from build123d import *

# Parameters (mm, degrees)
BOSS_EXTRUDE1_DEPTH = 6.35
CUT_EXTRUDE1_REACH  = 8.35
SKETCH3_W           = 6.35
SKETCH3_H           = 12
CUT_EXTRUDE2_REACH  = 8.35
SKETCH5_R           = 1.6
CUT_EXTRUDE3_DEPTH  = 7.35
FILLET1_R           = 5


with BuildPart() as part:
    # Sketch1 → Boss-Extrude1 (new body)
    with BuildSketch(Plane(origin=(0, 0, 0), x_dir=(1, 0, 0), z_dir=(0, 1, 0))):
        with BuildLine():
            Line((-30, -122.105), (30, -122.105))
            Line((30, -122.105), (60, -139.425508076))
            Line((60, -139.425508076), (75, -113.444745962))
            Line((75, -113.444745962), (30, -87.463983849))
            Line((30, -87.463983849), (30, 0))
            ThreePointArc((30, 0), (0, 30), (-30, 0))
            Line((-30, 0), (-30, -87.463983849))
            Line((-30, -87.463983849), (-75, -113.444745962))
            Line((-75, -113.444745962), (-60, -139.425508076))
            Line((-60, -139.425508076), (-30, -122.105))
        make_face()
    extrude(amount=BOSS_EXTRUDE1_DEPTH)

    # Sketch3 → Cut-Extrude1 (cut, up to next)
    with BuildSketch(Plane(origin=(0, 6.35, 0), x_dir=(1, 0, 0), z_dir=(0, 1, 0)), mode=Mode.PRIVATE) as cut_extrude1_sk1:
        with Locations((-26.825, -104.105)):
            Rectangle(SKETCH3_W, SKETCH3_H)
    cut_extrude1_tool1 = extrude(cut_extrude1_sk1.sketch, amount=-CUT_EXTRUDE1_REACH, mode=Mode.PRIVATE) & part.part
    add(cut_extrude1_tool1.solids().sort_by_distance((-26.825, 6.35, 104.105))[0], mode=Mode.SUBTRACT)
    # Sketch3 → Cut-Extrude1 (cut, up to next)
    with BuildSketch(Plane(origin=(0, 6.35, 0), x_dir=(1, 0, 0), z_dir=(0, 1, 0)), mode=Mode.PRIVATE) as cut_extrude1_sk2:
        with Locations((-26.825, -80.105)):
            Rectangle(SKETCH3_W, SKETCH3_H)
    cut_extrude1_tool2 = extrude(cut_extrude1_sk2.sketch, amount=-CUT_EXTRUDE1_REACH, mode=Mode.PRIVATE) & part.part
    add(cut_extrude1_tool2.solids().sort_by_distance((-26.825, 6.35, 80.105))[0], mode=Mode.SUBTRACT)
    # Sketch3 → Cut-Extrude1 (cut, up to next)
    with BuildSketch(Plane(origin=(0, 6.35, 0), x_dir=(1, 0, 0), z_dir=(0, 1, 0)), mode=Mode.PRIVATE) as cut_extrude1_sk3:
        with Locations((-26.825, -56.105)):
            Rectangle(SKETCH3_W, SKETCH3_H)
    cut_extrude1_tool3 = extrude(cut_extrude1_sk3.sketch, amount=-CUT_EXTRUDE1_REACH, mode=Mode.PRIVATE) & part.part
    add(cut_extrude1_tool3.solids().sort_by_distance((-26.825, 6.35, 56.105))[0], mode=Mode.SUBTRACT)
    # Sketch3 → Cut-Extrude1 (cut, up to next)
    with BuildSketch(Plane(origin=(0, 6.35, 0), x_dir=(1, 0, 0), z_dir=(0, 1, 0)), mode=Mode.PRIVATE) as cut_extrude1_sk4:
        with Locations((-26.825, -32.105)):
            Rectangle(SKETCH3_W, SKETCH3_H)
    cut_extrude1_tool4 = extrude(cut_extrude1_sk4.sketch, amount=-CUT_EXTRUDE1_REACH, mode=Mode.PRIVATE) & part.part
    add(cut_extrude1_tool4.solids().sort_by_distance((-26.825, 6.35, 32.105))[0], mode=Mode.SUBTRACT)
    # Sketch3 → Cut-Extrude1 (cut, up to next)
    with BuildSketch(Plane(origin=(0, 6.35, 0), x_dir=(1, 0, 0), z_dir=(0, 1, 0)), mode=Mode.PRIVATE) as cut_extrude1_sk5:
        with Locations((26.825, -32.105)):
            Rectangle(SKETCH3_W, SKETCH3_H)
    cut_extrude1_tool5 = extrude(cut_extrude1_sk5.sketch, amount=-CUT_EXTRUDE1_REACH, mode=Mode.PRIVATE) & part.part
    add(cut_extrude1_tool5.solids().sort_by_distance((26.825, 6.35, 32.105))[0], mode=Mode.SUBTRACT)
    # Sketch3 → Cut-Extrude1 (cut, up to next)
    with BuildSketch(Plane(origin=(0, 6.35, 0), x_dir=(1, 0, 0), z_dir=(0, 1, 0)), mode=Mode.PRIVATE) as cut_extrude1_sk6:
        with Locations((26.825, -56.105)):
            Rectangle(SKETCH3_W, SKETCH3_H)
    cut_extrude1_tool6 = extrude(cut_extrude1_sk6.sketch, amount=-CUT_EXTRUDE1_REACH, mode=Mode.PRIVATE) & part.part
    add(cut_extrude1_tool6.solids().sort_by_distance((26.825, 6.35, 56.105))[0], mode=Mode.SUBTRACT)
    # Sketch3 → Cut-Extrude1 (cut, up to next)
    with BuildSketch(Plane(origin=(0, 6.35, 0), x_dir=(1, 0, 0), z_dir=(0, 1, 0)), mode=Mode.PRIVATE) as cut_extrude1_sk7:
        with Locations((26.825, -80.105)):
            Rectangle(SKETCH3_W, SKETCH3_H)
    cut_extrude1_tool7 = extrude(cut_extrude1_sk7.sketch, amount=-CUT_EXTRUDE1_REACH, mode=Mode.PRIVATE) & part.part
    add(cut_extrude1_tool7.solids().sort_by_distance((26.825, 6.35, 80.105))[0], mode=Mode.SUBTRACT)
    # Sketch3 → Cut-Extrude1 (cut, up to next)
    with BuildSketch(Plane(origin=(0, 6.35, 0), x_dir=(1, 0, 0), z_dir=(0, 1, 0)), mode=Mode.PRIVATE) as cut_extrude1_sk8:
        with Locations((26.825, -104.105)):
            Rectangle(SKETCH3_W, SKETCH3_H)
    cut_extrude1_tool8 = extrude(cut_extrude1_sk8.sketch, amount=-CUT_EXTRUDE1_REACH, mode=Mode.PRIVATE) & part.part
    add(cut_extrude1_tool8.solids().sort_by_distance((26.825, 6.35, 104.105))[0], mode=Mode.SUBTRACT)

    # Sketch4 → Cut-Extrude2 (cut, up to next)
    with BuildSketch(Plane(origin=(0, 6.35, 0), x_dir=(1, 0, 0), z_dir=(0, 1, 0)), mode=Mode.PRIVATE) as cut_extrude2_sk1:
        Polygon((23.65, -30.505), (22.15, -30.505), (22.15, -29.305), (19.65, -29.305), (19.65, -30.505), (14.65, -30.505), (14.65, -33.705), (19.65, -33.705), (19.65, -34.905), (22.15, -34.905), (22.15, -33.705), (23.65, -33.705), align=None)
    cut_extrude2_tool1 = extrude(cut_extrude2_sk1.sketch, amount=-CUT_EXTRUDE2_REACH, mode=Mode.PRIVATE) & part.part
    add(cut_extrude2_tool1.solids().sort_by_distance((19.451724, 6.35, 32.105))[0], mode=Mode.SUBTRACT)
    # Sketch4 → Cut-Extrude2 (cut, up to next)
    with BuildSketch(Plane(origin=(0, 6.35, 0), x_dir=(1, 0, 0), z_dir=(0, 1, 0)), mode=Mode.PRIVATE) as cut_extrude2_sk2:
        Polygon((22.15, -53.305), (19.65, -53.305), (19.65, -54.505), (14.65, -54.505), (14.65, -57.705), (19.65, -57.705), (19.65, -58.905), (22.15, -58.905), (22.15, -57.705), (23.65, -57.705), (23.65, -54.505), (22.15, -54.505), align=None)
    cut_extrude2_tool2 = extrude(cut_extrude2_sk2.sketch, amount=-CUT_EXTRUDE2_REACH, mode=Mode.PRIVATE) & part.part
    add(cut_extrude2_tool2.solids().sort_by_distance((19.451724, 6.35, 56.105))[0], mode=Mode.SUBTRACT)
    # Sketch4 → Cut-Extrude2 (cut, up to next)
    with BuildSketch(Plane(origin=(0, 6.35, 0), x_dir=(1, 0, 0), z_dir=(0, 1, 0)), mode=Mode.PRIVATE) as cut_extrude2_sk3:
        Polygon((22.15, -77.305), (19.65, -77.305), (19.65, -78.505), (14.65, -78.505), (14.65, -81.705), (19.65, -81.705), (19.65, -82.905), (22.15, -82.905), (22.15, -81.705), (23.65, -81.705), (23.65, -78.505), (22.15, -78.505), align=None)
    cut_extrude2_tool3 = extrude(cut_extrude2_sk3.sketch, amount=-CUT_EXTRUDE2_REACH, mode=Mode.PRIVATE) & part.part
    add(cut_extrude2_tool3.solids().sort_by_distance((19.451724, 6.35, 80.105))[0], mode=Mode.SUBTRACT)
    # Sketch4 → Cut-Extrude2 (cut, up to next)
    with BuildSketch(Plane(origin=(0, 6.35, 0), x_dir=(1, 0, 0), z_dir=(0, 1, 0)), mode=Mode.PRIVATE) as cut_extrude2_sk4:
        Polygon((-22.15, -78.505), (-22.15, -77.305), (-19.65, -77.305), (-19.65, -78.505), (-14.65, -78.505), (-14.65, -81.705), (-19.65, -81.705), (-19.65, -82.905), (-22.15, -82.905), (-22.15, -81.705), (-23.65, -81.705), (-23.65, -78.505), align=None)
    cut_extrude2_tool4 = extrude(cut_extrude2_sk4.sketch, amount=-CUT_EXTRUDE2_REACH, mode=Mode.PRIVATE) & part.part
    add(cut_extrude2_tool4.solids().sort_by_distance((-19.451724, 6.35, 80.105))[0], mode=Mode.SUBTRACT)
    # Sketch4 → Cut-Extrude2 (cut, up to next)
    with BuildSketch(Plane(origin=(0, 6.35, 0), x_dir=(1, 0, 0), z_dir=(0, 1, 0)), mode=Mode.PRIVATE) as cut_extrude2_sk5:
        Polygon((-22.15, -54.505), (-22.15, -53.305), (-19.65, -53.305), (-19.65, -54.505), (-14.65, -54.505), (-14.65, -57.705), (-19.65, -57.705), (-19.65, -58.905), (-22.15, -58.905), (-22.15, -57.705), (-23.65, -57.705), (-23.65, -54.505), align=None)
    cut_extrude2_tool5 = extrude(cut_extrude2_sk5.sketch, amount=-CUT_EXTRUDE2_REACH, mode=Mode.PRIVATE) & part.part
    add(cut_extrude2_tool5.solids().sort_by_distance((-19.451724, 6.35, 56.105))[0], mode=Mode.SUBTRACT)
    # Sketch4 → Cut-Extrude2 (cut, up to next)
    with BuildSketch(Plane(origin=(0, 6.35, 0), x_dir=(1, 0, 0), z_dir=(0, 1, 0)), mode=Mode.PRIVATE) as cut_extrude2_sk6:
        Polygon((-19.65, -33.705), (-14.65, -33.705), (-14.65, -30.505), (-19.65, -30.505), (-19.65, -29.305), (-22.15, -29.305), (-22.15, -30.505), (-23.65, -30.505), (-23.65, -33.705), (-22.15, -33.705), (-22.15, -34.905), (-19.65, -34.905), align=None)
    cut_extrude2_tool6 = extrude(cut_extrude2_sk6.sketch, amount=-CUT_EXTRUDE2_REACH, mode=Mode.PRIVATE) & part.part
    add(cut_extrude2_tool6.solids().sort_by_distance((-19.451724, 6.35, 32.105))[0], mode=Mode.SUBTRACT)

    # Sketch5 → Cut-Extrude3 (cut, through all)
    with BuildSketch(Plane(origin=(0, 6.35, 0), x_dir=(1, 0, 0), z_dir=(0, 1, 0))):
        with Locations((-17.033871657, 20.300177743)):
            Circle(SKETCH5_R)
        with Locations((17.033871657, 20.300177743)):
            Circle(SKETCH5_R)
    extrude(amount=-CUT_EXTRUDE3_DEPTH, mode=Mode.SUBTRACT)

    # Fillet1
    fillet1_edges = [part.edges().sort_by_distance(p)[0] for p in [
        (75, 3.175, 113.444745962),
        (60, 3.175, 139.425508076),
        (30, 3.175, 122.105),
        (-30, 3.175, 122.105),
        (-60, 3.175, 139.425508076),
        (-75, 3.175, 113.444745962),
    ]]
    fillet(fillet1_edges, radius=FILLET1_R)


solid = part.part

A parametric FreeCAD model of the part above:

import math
import FreeCAD as App
import Part
import Sketcher
from FreeCAD import Vector
Q = App.Units.Quantity


def edges_at(feature, points):
    """Names of the edges that pass closest to the given points."""
    edges = feature.Shape.Edges
    near = lambda p: min(range(len(edges)), key=lambda i: edges[i].distToShape(Part.Vertex(*p))[0])
    return sorted({f"Edge{near(p) + 1}" for p in points})

doc = App.newDocument("Part")
body = doc.addObject("PartDesign::Body", "Body")

# Sketch on XZ plane
sketch1 = body.newObject("Sketcher::SketchObject", "Sketch")
sketch1.AttachmentSupport = (doc.getObject("XZ_Plane"), [""])
sketch1.MapMode = "FlatFace"
sketch1.addGeometry(Part.LineSegment(Vector(-30, 122.105, 0), Vector(30, 122.105, 0)), False)
sketch1.addGeometry(Part.LineSegment(Vector(30, 122.105, 0), Vector(60, 139.425508, 0)), False)
sketch1.addGeometry(Part.LineSegment(Vector(60, 139.425508, 0), Vector(75, 113.444746, 0)), False)
sketch1.addGeometry(Part.LineSegment(Vector(75, 113.444746, 0), Vector(30, 87.463984, 0)), False)
sketch1.addGeometry(Part.LineSegment(Vector(30, 87.463984, 0), Vector(30, 0, 0)), False)
sketch1.addGeometry(Part.ArcOfCircle(Part.Circle(Vector(0, 0, 0), Vector(0, 0, 1), 30), math.radians(180), math.radians(360)), False)
sketch1.addGeometry(Part.LineSegment(Vector(-30, 0, 0), Vector(-30, 87.463984, 0)), False)
sketch1.addGeometry(Part.LineSegment(Vector(-30, 87.463984, 0), Vector(-75, 113.444746, 0)), False)
sketch1.addGeometry(Part.LineSegment(Vector(-75, 113.444746, 0), Vector(-60, 139.425508, 0)), False)
sketch1.addGeometry(Part.LineSegment(Vector(-60, 139.425508, 0), Vector(-30, 122.105, 0)), False)
sketch1.addConstraint(Sketcher.Constraint("Coincident", 0, 2, 1, 1))
sketch1.addConstraint(Sketcher.Constraint("Coincident", 1, 2, 2, 1))
sketch1.addConstraint(Sketcher.Constraint("Coincident", 2, 2, 3, 1))
sketch1.addConstraint(Sketcher.Constraint("Coincident", 3, 2, 4, 1))
sketch1.addConstraint(Sketcher.Constraint("Tangent", 4, 2, 5, 2))
sketch1.addConstraint(Sketcher.Constraint("Tangent", 5, 1, 6, 1))
sketch1.addConstraint(Sketcher.Constraint("Coincident", 6, 2, 7, 1))
sketch1.addConstraint(Sketcher.Constraint("Coincident", 7, 2, 8, 1))
sketch1.addConstraint(Sketcher.Constraint("Coincident", 8, 2, 9, 1))
sketch1.addConstraint(Sketcher.Constraint("Coincident", 9, 2, 0, 1))
sketch1.addConstraint(Sketcher.Constraint("Horizontal", 0))
sketch1.addConstraint(Sketcher.Constraint("Vertical", 4))
sketch1.addConstraint(Sketcher.Constraint("Vertical", 6))
sketch1.addConstraint(Sketcher.Constraint("Coincident", 5, 3, -1, 1))
sketch1.addConstraint(Sketcher.Constraint("Symmetric", 2, 2, 7, 2, -2))
sketch1.addConstraint(Sketcher.Constraint("Symmetric", 1, 2, 8, 2, -2))
sketch1.addConstraint(Sketcher.Constraint("Perpendicular", 1, 2))
sketch1.addConstraint(Sketcher.Constraint("Perpendicular", 2, 3))
sketch1.addConstraint(Sketcher.Constraint("Perpendicular", 7, 8))
sketch1.addConstraint(Sketcher.Constraint("Perpendicular", 8, 9))
sketch1.addConstraint(Sketcher.Constraint("Vertical", 0, 2, 3, 2))
sketch1.addConstraint(Sketcher.Constraint("Radius", 5, Q("30 mm")))
sketch1.addConstraint(Sketcher.Constraint("Angle", 1, Q("30 deg")))
sketch1.addConstraint(Sketcher.Constraint("Distance", 2, Q("30 mm")))
sketch1.addConstraint(Sketcher.Constraint("DistanceX", -1, 1, 1, 2, Q("60 mm")))
sketch1.addConstraint(Sketcher.Constraint("DistanceY", -1, 1, 0, 2, Q("122.105 mm")))
pad1 = body.newObject("PartDesign::Pad", "Pad")
pad1.Profile = sketch1
pad1.Length = 6.35
pad1.Reversed = True

# Sketch on XZ plane
sketch2 = body.newObject("Sketcher::SketchObject", "Sketch001")
sketch2.AttachmentSupport = (doc.getObject("XZ_Plane"), [""])
sketch2.MapMode = "FlatFace"
sketch2.AttachmentOffset = App.Placement(Vector(0, 0, -6.35), App.Rotation())
sketch2.addGeometry(Part.LineSegment(Vector(-30, 98.105, 0), Vector(-30, 110.105, 0)), False)
sketch2.addGeometry(Part.LineSegment(Vector(-30, 110.105, 0), Vector(-23.65, 110.105, 0)), False)
sketch2.addGeometry(Part.LineSegment(Vector(-23.65, 110.105, 0), Vector(-23.65, 98.105, 0)), False)
sketch2.addGeometry(Part.LineSegment(Vector(-23.65, 98.105, 0), Vector(-30, 98.105, 0)), False)
sketch2.addConstraint(Sketcher.Constraint("Coincident", 0, 2, 1, 1))
sketch2.addConstraint(Sketcher.Constraint("Coincident", 1, 2, 2, 1))
sketch2.addConstraint(Sketcher.Constraint("Coincident", 2, 2, 3, 1))
sketch2.addConstraint(Sketcher.Constraint("Coincident", 3, 2, 0, 1))
sketch2.addConstraint(Sketcher.Constraint("Vertical", 0))
sketch2.addConstraint(Sketcher.Constraint("Horizontal", 1))
sketch2.addConstraint(Sketcher.Constraint("Vertical", 2))
sketch2.addConstraint(Sketcher.Constraint("Horizontal", 3))
sketch2.addConstraint(Sketcher.Constraint("DistanceY", 0, 1, 0, 2, Q("12 mm")))
sketch2.addConstraint(Sketcher.Constraint("DistanceX", 0, 2, -1, 1, Q("30 mm")))
sketch2.addConstraint(Sketcher.Constraint("DistanceX", 1, 1, 1, 2, Q("6.35 mm")))
sketch2.addConstraint(Sketcher.Constraint("DistanceY", -1, 1, 0, 2, Q("110.105 mm")))
pocket1 = body.newObject("PartDesign::Pocket", "Pocket")
pocket1.Profile = sketch2
pocket1.Type = "UpToFirst"
pocket1.Reversed = True

# Sketch on XZ plane
sketch3 = body.newObject("Sketcher::SketchObject", "Sketch002")
sketch3.AttachmentSupport = (doc.getObject("XZ_Plane"), [""])
sketch3.MapMode = "FlatFace"
sketch3.AttachmentOffset = App.Placement(Vector(0, 0, -6.35), App.Rotation())
sketch3.addGeometry(Part.LineSegment(Vector(-30, 74.105, 0), Vector(-30, 86.105, 0)), False)
sketch3.addGeometry(Part.LineSegment(Vector(-30, 86.105, 0), Vector(-23.65, 86.105, 0)), False)
sketch3.addGeometry(Part.LineSegment(Vector(-23.65, 86.105, 0), Vector(-23.65, 74.105, 0)), False)
sketch3.addGeometry(Part.LineSegment(Vector(-23.65, 74.105, 0), Vector(-30, 74.105, 0)), False)
sketch3.addConstraint(Sketcher.Constraint("Coincident", 0, 2, 1, 1))
sketch3.addConstraint(Sketcher.Constraint("Coincident", 1, 2, 2, 1))
sketch3.addConstraint(Sketcher.Constraint("Coincident", 2, 2, 3, 1))
sketch3.addConstraint(Sketcher.Constraint("Coincident", 3, 2, 0, 1))
sketch3.addConstraint(Sketcher.Constraint("Vertical", 0))
sketch3.addConstraint(Sketcher.Constraint("Horizontal", 1))
sketch3.addConstraint(Sketcher.Constraint("Vertical", 2))
sketch3.addConstraint(Sketcher.Constraint("Horizontal", 3))
sketch3.addConstraint(Sketcher.Constraint("DistanceY", 0, 1, 0, 2, Q("12 mm")))
sketch3.addConstraint(Sketcher.Constraint("DistanceX", 0, 2, -1, 1, Q("30 mm")))
sketch3.addConstraint(Sketcher.Constraint("DistanceX", 1, 1, 1, 2, Q("6.35 mm")))
sketch3.addConstraint(Sketcher.Constraint("DistanceY", -1, 1, 0, 2, Q("86.105 mm")))
pocket2 = body.newObject("PartDesign::Pocket", "Pocket001")
pocket2.Profile = sketch3
pocket2.Type = "UpToFirst"
pocket2.Reversed = True

# Sketch on XZ plane
sketch4 = body.newObject("Sketcher::SketchObject", "Sketch003")
sketch4.AttachmentSupport = (doc.getObject("XZ_Plane"), [""])
sketch4.MapMode = "FlatFace"
sketch4.AttachmentOffset = App.Placement(Vector(0, 0, -6.35), App.Rotation())
sketch4.addGeometry(Part.LineSegment(Vector(-30, 50.105, 0), Vector(-30, 62.105, 0)), False)
sketch4.addGeometry(Part.LineSegment(Vector(-30, 62.105, 0), Vector(-23.65, 62.105, 0)), False)
sketch4.addGeometry(Part.LineSegment(Vector(-23.65, 62.105, 0), Vector(-23.65, 50.105, 0)), False)
sketch4.addGeometry(Part.LineSegment(Vector(-23.65, 50.105, 0), Vector(-30, 50.105, 0)), False)
sketch4.addConstraint(Sketcher.Constraint("Coincident", 0, 2, 1, 1))
sketch4.addConstraint(Sketcher.Constraint("Coincident", 1, 2, 2, 1))
sketch4.addConstraint(Sketcher.Constraint("Coincident", 2, 2, 3, 1))
sketch4.addConstraint(Sketcher.Constraint("Coincident", 3, 2, 0, 1))
sketch4.addConstraint(Sketcher.Constraint("Vertical", 0))
sketch4.addConstraint(Sketcher.Constraint("Horizontal", 1))
sketch4.addConstraint(Sketcher.Constraint("Vertical", 2))
sketch4.addConstraint(Sketcher.Constraint("Horizontal", 3))
sketch4.addConstraint(Sketcher.Constraint("DistanceY", 0, 1, 0, 2, Q("12 mm")))
sketch4.addConstraint(Sketcher.Constraint("DistanceX", 0, 2, -1, 1, Q("30 mm")))
sketch4.addConstraint(Sketcher.Constraint("DistanceX", 1, 1, 1, 2, Q("6.35 mm")))
sketch4.addConstraint(Sketcher.Constraint("DistanceY", -1, 1, 0, 2, Q("62.105 mm")))
pocket3 = body.newObject("PartDesign::Pocket", "Pocket002")
pocket3.Profile = sketch4
pocket3.Type = "UpToFirst"
pocket3.Reversed = True

# Sketch on XZ plane
sketch5 = body.newObject("Sketcher::SketchObject", "Sketch004")
sketch5.AttachmentSupport = (doc.getObject("XZ_Plane"), [""])
sketch5.MapMode = "FlatFace"
sketch5.AttachmentOffset = App.Placement(Vector(0, 0, -6.35), App.Rotation())
sketch5.addGeometry(Part.LineSegment(Vector(-30, 26.105, 0), Vector(-30, 38.105, 0)), False)
sketch5.addGeometry(Part.LineSegment(Vector(-30, 38.105, 0), Vector(-23.65, 38.105, 0)), False)
sketch5.addGeometry(Part.LineSegment(Vector(-23.65, 38.105, 0), Vector(-23.65, 26.105, 0)), False)
sketch5.addGeometry(Part.LineSegment(Vector(-23.65, 26.105, 0), Vector(-30, 26.105, 0)), False)
sketch5.addConstraint(Sketcher.Constraint("Coincident", 0, 2, 1, 1))
sketch5.addConstraint(Sketcher.Constraint("Coincident", 1, 2, 2, 1))
sketch5.addConstraint(Sketcher.Constraint("Coincident", 2, 2, 3, 1))
sketch5.addConstraint(Sketcher.Constraint("Coincident", 3, 2, 0, 1))
sketch5.addConstraint(Sketcher.Constraint("Vertical", 0))
sketch5.addConstraint(Sketcher.Constraint("Horizontal", 1))
sketch5.addConstraint(Sketcher.Constraint("Vertical", 2))
sketch5.addConstraint(Sketcher.Constraint("Horizontal", 3))
sketch5.addConstraint(Sketcher.Constraint("DistanceY", 0, 1, 0, 2, Q("12 mm")))
sketch5.addConstraint(Sketcher.Constraint("DistanceX", 0, 2, -1, 1, Q("30 mm")))
sketch5.addConstraint(Sketcher.Constraint("DistanceX", 1, 1, 1, 2, Q("6.35 mm")))
sketch5.addConstraint(Sketcher.Constraint("DistanceY", -1, 1, 0, 2, Q("38.105 mm")))
pocket4 = body.newObject("PartDesign::Pocket", "Pocket003")
pocket4.Profile = sketch5
pocket4.Type = "UpToFirst"
pocket4.Reversed = True

# Sketch on XZ plane
sketch6 = body.newObject("Sketcher::SketchObject", "Sketch005")
sketch6.AttachmentSupport = (doc.getObject("XZ_Plane"), [""])
sketch6.MapMode = "FlatFace"
sketch6.AttachmentOffset = App.Placement(Vector(0, 0, -6.35), App.Rotation())
sketch6.addGeometry(Part.LineSegment(Vector(23.65, 26.105, 0), Vector(23.65, 38.105, 0)), False)
sketch6.addGeometry(Part.LineSegment(Vector(23.65, 38.105, 0), Vector(30, 38.105, 0)), False)
sketch6.addGeometry(Part.LineSegment(Vector(30, 38.105, 0), Vector(30, 26.105, 0)), False)
sketch6.addGeometry(Part.LineSegment(Vector(30, 26.105, 0), Vector(23.65, 26.105, 0)), False)
sketch6.addConstraint(Sketcher.Constraint("Coincident", 0, 2, 1, 1))
sketch6.addConstraint(Sketcher.Constraint("Coincident", 1, 2, 2, 1))
sketch6.addConstraint(Sketcher.Constraint("Coincident", 2, 2, 3, 1))
sketch6.addConstraint(Sketcher.Constraint("Coincident", 3, 2, 0, 1))
sketch6.addConstraint(Sketcher.Constraint("Vertical", 0))
sketch6.addConstraint(Sketcher.Constraint("Horizontal", 1))
sketch6.addConstraint(Sketcher.Constraint("Vertical", 2))
sketch6.addConstraint(Sketcher.Constraint("Horizontal", 3))
sketch6.addConstraint(Sketcher.Constraint("DistanceY", 0, 1, 0, 2, Q("12 mm")))
sketch6.addConstraint(Sketcher.Constraint("DistanceX", -1, 1, 1, 2, Q("30 mm")))
sketch6.addConstraint(Sketcher.Constraint("DistanceX", 1, 1, 1, 2, Q("6.35 mm")))
sketch6.addConstraint(Sketcher.Constraint("DistanceY", -1, 1, 0, 2, Q("38.105 mm")))
pocket5 = body.newObject("PartDesign::Pocket", "Pocket004")
pocket5.Profile = sketch6
pocket5.Type = "UpToFirst"
pocket5.Reversed = True

# Sketch on XZ plane
sketch7 = body.newObject("Sketcher::SketchObject", "Sketch006")
sketch7.AttachmentSupport = (doc.getObject("XZ_Plane"), [""])
sketch7.MapMode = "FlatFace"
sketch7.AttachmentOffset = App.Placement(Vector(0, 0, -6.35), App.Rotation())
sketch7.addGeometry(Part.LineSegment(Vector(23.65, 50.105, 0), Vector(23.65, 62.105, 0)), False)
sketch7.addGeometry(Part.LineSegment(Vector(23.65, 62.105, 0), Vector(30, 62.105, 0)), False)
sketch7.addGeometry(Part.LineSegment(Vector(30, 62.105, 0), Vector(30, 50.105, 0)), False)
sketch7.addGeometry(Part.LineSegment(Vector(30, 50.105, 0), Vector(23.65, 50.105, 0)), False)
sketch7.addConstraint(Sketcher.Constraint("Coincident", 0, 2, 1, 1))
sketch7.addConstraint(Sketcher.Constraint("Coincident", 1, 2, 2, 1))
sketch7.addConstraint(Sketcher.Constraint("Coincident", 2, 2, 3, 1))
sketch7.addConstraint(Sketcher.Constraint("Coincident", 3, 2, 0, 1))
sketch7.addConstraint(Sketcher.Constraint("Vertical", 0))
sketch7.addConstraint(Sketcher.Constraint("Horizontal", 1))
sketch7.addConstraint(Sketcher.Constraint("Vertical", 2))
sketch7.addConstraint(Sketcher.Constraint("Horizontal", 3))
sketch7.addConstraint(Sketcher.Constraint("DistanceY", 0, 1, 0, 2, Q("12 mm")))
sketch7.addConstraint(Sketcher.Constraint("DistanceX", -1, 1, 1, 2, Q("30 mm")))
sketch7.addConstraint(Sketcher.Constraint("DistanceX", 1, 1, 1, 2, Q("6.35 mm")))
sketch7.addConstraint(Sketcher.Constraint("DistanceY", -1, 1, 0, 2, Q("62.105 mm")))
pocket6 = body.newObject("PartDesign::Pocket", "Pocket005")
pocket6.Profile = sketch7
pocket6.Type = "UpToFirst"
pocket6.Reversed = True

# Sketch on XZ plane
sketch8 = body.newObject("Sketcher::SketchObject", "Sketch007")
sketch8.AttachmentSupport = (doc.getObject("XZ_Plane"), [""])
sketch8.MapMode = "FlatFace"
sketch8.AttachmentOffset = App.Placement(Vector(0, 0, -6.35), App.Rotation())
sketch8.addGeometry(Part.LineSegment(Vector(23.65, 74.105, 0), Vector(23.65, 86.105, 0)), False)
sketch8.addGeometry(Part.LineSegment(Vector(23.65, 86.105, 0), Vector(30, 86.105, 0)), False)
sketch8.addGeometry(Part.LineSegment(Vector(30, 86.105, 0), Vector(30, 74.105, 0)), False)
sketch8.addGeometry(Part.LineSegment(Vector(30, 74.105, 0), Vector(23.65, 74.105, 0)), False)
sketch8.addConstraint(Sketcher.Constraint("Coincident", 0, 2, 1, 1))
sketch8.addConstraint(Sketcher.Constraint("Coincident", 1, 2, 2, 1))
sketch8.addConstraint(Sketcher.Constraint("Coincident", 2, 2, 3, 1))
sketch8.addConstraint(Sketcher.Constraint("Coincident", 3, 2, 0, 1))
sketch8.addConstraint(Sketcher.Constraint("Vertical", 0))
sketch8.addConstraint(Sketcher.Constraint("Horizontal", 1))
sketch8.addConstraint(Sketcher.Constraint("Vertical", 2))
sketch8.addConstraint(Sketcher.Constraint("Horizontal", 3))
sketch8.addConstraint(Sketcher.Constraint("DistanceY", 0, 1, 0, 2, Q("12 mm")))
sketch8.addConstraint(Sketcher.Constraint("DistanceX", -1, 1, 1, 2, Q("30 mm")))
sketch8.addConstraint(Sketcher.Constraint("DistanceX", 1, 1, 1, 2, Q("6.35 mm")))
sketch8.addConstraint(Sketcher.Constraint("DistanceY", -1, 1, 0, 2, Q("86.105 mm")))
pocket7 = body.newObject("PartDesign::Pocket", "Pocket006")
pocket7.Profile = sketch8
pocket7.Type = "UpToFirst"
pocket7.Reversed = True

# Sketch on XZ plane
sketch9 = body.newObject("Sketcher::SketchObject", "Sketch008")
sketch9.AttachmentSupport = (doc.getObject("XZ_Plane"), [""])
sketch9.MapMode = "FlatFace"
sketch9.AttachmentOffset = App.Placement(Vector(0, 0, -6.35), App.Rotation())
sketch9.addGeometry(Part.LineSegment(Vector(23.65, 98.105, 0), Vector(23.65, 110.105, 0)), False)
sketch9.addGeometry(Part.LineSegment(Vector(23.65, 110.105, 0), Vector(30, 110.105, 0)), False)
sketch9.addGeometry(Part.LineSegment(Vector(30, 110.105, 0), Vector(30, 98.105, 0)), False)
sketch9.addGeometry(Part.LineSegment(Vector(30, 98.105, 0), Vector(23.65, 98.105, 0)), False)
sketch9.addConstraint(Sketcher.Constraint("Coincident", 0, 2, 1, 1))
sketch9.addConstraint(Sketcher.Constraint("Coincident", 1, 2, 2, 1))
sketch9.addConstraint(Sketcher.Constraint("Coincident", 2, 2, 3, 1))
sketch9.addConstraint(Sketcher.Constraint("Coincident", 3, 2, 0, 1))
sketch9.addConstraint(Sketcher.Constraint("Vertical", 0))
sketch9.addConstraint(Sketcher.Constraint("Horizontal", 1))
sketch9.addConstraint(Sketcher.Constraint("Vertical", 2))
sketch9.addConstraint(Sketcher.Constraint("Horizontal", 3))
sketch9.addConstraint(Sketcher.Constraint("DistanceY", 0, 1, 0, 2, Q("12 mm")))
sketch9.addConstraint(Sketcher.Constraint("DistanceX", -1, 1, 1, 2, Q("30 mm")))
sketch9.addConstraint(Sketcher.Constraint("DistanceX", 1, 1, 1, 2, Q("6.35 mm")))
sketch9.addConstraint(Sketcher.Constraint("DistanceY", -1, 1, 0, 2, Q("110.105 mm")))
pocket8 = body.newObject("PartDesign::Pocket", "Pocket007")
pocket8.Profile = sketch9
pocket8.Type = "UpToFirst"
pocket8.Reversed = True

# Sketch on XZ plane
sketch10 = body.newObject("Sketcher::SketchObject", "Sketch009")
sketch10.AttachmentSupport = (doc.getObject("XZ_Plane"), [""])
sketch10.MapMode = "FlatFace"
sketch10.AttachmentOffset = App.Placement(Vector(0, 0, -6.35), App.Rotation())
sketch10.addGeometry(Part.LineSegment(Vector(23.65, 30.505, 0), Vector(22.15, 30.505, 0)), False)
sketch10.addGeometry(Part.LineSegment(Vector(22.15, 30.505, 0), Vector(22.15, 29.305, 0)), False)
sketch10.addGeometry(Part.LineSegment(Vector(22.15, 29.305, 0), Vector(19.65, 29.305, 0)), False)
sketch10.addGeometry(Part.LineSegment(Vector(19.65, 29.305, 0), Vector(19.65, 30.505, 0)), False)
sketch10.addGeometry(Part.LineSegment(Vector(19.65, 30.505, 0), Vector(14.65, 30.505, 0)), False)
sketch10.addGeometry(Part.LineSegment(Vector(14.65, 30.505, 0), Vector(14.65, 33.705, 0)), False)
sketch10.addGeometry(Part.LineSegment(Vector(14.65, 33.705, 0), Vector(19.65, 33.705, 0)), False)
sketch10.addGeometry(Part.LineSegment(Vector(19.65, 33.705, 0), Vector(19.65, 34.905, 0)), False)
sketch10.addGeometry(Part.LineSegment(Vector(19.65, 34.905, 0), Vector(22.15, 34.905, 0)), False)
sketch10.addGeometry(Part.LineSegment(Vector(22.15, 34.905, 0), Vector(22.15, 33.705, 0)), False)
sketch10.addGeometry(Part.LineSegment(Vector(22.15, 33.705, 0), Vector(23.65, 33.705, 0)), False)
sketch10.addGeometry(Part.LineSegment(Vector(23.65, 33.705, 0), Vector(23.65, 30.505, 0)), False)
sketch10.addConstraint(Sketcher.Constraint("Coincident", 0, 2, 1, 1))
sketch10.addConstraint(Sketcher.Constraint("Coincident", 1, 2, 2, 1))
sketch10.addConstraint(Sketcher.Constraint("Coincident", 2, 2, 3, 1))
sketch10.addConstraint(Sketcher.Constraint("Coincident", 3, 2, 4, 1))
sketch10.addConstraint(Sketcher.Constraint("Coincident", 4, 2, 5, 1))
sketch10.addConstraint(Sketcher.Constraint("Coincident", 5, 2, 6, 1))
sketch10.addConstraint(Sketcher.Constraint("Coincident", 6, 2, 7, 1))
sketch10.addConstraint(Sketcher.Constraint("Coincident", 7, 2, 8, 1))
sketch10.addConstraint(Sketcher.Constraint("Coincident", 8, 2, 9, 1))
sketch10.addConstraint(Sketcher.Constraint("Coincident", 9, 2, 10, 1))
sketch10.addConstraint(Sketcher.Constraint("Coincident", 10, 2, 11, 1))
sketch10.addConstraint(Sketcher.Constraint("Coincident", 11, 2, 0, 1))
sketch10.addConstraint(Sketcher.Constraint("Horizontal", 0))
sketch10.addConstraint(Sketcher.Constraint("Vertical", 1))
sketch10.addConstraint(Sketcher.Constraint("Horizontal", 2))
sketch10.addConstraint(Sketcher.Constraint("Vertical", 3))
sketch10.addConstraint(Sketcher.Constraint("Horizontal", 4))
sketch10.addConstraint(Sketcher.Constraint("Vertical", 5))
sketch10.addConstraint(Sketcher.Constraint("Horizontal", 6))
sketch10.addConstraint(Sketcher.Constraint("Vertical", 7))
sketch10.addConstraint(Sketcher.Constraint("Horizontal", 8))
sketch10.addConstraint(Sketcher.Constraint("Vertical", 9))
sketch10.addConstraint(Sketcher.Constraint("Horizontal", 10))
sketch10.addConstraint(Sketcher.Constraint("Vertical", 11))
sketch10.addConstraint(Sketcher.Constraint("Horizontal", 0, 2, 3, 2))
sketch10.addConstraint(Sketcher.Constraint("Horizontal", 6, 2, 9, 2))
sketch10.addConstraint(Sketcher.Constraint("Vertical", 3, 2, 6, 2))
sketch10.addConstraint(Sketcher.Constraint("Vertical", 1, 2, 8, 2))
sketch10.addConstraint(Sketcher.Constraint("Equal", 3, 7))
sketch10.addConstraint(Sketcher.Constraint("DistanceX", 4, 2, 4, 1, Q("5 mm")))
sketch10.addConstraint(Sketcher.Constraint("DistanceX", 0, 2, 0, 1, Q("1.5 mm")))
sketch10.addConstraint(Sketcher.Constraint("DistanceX", 2, 2, 2, 1, Q("2.5 mm")))
sketch10.addConstraint(Sketcher.Constraint("DistanceY", 1, 2, 1, 1, Q("1.2 mm")))
sketch10.addConstraint(Sketcher.Constraint("DistanceY", 5, 1, 5, 2, Q("3.2 mm")))
sketch10.addConstraint(Sketcher.Constraint("DistanceX", -1, 1, 0, 2, Q("22.15 mm")))
sketch10.addConstraint(Sketcher.Constraint("DistanceY", -1, 1, 0, 2, Q("30.505 mm")))
pocket9 = body.newObject("PartDesign::Pocket", "Pocket008")
pocket9.Profile = sketch10
pocket9.Type = "UpToFirst"
pocket9.Reversed = True

# Sketch on XZ plane
sketch11 = body.newObject("Sketcher::SketchObject", "Sketch010")
sketch11.AttachmentSupport = (doc.getObject("XZ_Plane"), [""])
sketch11.MapMode = "FlatFace"
sketch11.AttachmentOffset = App.Placement(Vector(0, 0, -6.35), App.Rotation())
sketch11.addGeometry(Part.LineSegment(Vector(22.15, 53.305, 0), Vector(19.65, 53.305, 0)), False)
sketch11.addGeometry(Part.LineSegment(Vector(19.65, 53.305, 0), Vector(19.65, 54.505, 0)), False)
sketch11.addGeometry(Part.LineSegment(Vector(19.65, 54.505, 0), Vector(14.65, 54.505, 0)), False)
sketch11.addGeometry(Part.LineSegment(Vector(14.65, 54.505, 0), Vector(14.65, 57.705, 0)), False)
sketch11.addGeometry(Part.LineSegment(Vector(14.65, 57.705, 0), Vector(19.65, 57.705, 0)), False)
sketch11.addGeometry(Part.LineSegment(Vector(19.65, 57.705, 0), Vector(19.65, 58.905, 0)), False)
sketch11.addGeometry(Part.LineSegment(Vector(19.65, 58.905, 0), Vector(22.15, 58.905, 0)), False)
sketch11.addGeometry(Part.LineSegment(Vector(22.15, 58.905, 0), Vector(22.15, 57.705, 0)), False)
sketch11.addGeometry(Part.LineSegment(Vector(22.15, 57.705, 0), Vector(23.65, 57.705, 0)), False)
sketch11.addGeometry(Part.LineSegment(Vector(23.65, 57.705, 0), Vector(23.65, 54.505, 0)), False)
sketch11.addGeometry(Part.LineSegment(Vector(23.65, 54.505, 0), Vector(22.15, 54.505, 0)), False)
sketch11.addGeometry(Part.LineSegment(Vector(22.15, 54.505, 0), Vector(22.15, 53.305, 0)), False)
sketch11.addConstraint(Sketcher.Constraint("Coincident", 0, 2, 1, 1))
sketch11.addConstraint(Sketcher.Constraint("Coincident", 1, 2, 2, 1))
sketch11.addConstraint(Sketcher.Constraint("Coincident", 2, 2, 3, 1))
sketch11.addConstraint(Sketcher.Constraint("Coincident", 3, 2, 4, 1))
sketch11.addConstraint(Sketcher.Constraint("Coincident", 4, 2, 5, 1))
sketch11.addConstraint(Sketcher.Constraint("Coincident", 5, 2, 6, 1))
sketch11.addConstraint(Sketcher.Constraint("Coincident", 6, 2, 7, 1))
sketch11.addConstraint(Sketcher.Constraint("Coincident", 7, 2, 8, 1))
sketch11.addConstraint(Sketcher.Constraint("Coincident", 8, 2, 9, 1))
sketch11.addConstraint(Sketcher.Constraint("Coincident", 9, 2, 10, 1))
sketch11.addConstraint(Sketcher.Constraint("Coincident", 10, 2, 11, 1))
sketch11.addConstraint(Sketcher.Constraint("Coincident", 11, 2, 0, 1))
sketch11.addConstraint(Sketcher.Constraint("Horizontal", 0))
sketch11.addConstraint(Sketcher.Constraint("Vertical", 1))
sketch11.addConstraint(Sketcher.Constraint("Horizontal", 2))
sketch11.addConstraint(Sketcher.Constraint("Vertical", 3))
sketch11.addConstraint(Sketcher.Constraint("Horizontal", 4))
sketch11.addConstraint(Sketcher.Constraint("Vertical", 5))
sketch11.addConstraint(Sketcher.Constraint("Horizontal", 6))
sketch11.addConstraint(Sketcher.Constraint("Vertical", 7))
sketch11.addConstraint(Sketcher.Constraint("Horizontal", 8))
sketch11.addConstraint(Sketcher.Constraint("Vertical", 9))
sketch11.addConstraint(Sketcher.Constraint("Horizontal", 10))
sketch11.addConstraint(Sketcher.Constraint("Vertical", 11))
sketch11.addConstraint(Sketcher.Constraint("Horizontal", 4, 2, 7, 2))
sketch11.addConstraint(Sketcher.Constraint("Horizontal", 2, 2, 9, 2))
sketch11.addConstraint(Sketcher.Constraint("Vertical", 1, 2, 4, 2))
sketch11.addConstraint(Sketcher.Constraint("Vertical", 7, 2, 10, 2))
sketch11.addConstraint(Sketcher.Constraint("Equal", 1, 5))
sketch11.addConstraint(Sketcher.Constraint("DistanceX", 2, 2, 2, 1, Q("5 mm")))
sketch11.addConstraint(Sketcher.Constraint("DistanceX", 0, 2, 0, 1, Q("2.5 mm")))
sketch11.addConstraint(Sketcher.Constraint("DistanceX", 8, 1, 8, 2, Q("1.5 mm")))
sketch11.addConstraint(Sketcher.Constraint("DistanceY", 1, 1, 1, 2, Q("1.2 mm")))
sketch11.addConstraint(Sketcher.Constraint("DistanceY", 3, 1, 3, 2, Q("3.2 mm")))
sketch11.addConstraint(Sketcher.Constraint("DistanceX", -1, 1, 0, 2, Q("19.65 mm")))
sketch11.addConstraint(Sketcher.Constraint("DistanceY", -1, 1, 0, 2, Q("53.305 mm")))
pocket10 = body.newObject("PartDesign::Pocket", "Pocket009")
pocket10.Profile = sketch11
pocket10.Type = "UpToFirst"
pocket10.Reversed = True

# Sketch on XZ plane
sketch12 = body.newObject("Sketcher::SketchObject", "Sketch011")
sketch12.AttachmentSupport = (doc.getObject("XZ_Plane"), [""])
sketch12.MapMode = "FlatFace"
sketch12.AttachmentOffset = App.Placement(Vector(0, 0, -6.35), App.Rotation())
sketch12.addGeometry(Part.LineSegment(Vector(22.15, 77.305, 0), Vector(19.65, 77.305, 0)), False)
sketch12.addGeometry(Part.LineSegment(Vector(19.65, 77.305, 0), Vector(19.65, 78.505, 0)), False)
sketch12.addGeometry(Part.LineSegment(Vector(19.65, 78.505, 0), Vector(14.65, 78.505, 0)), False)
sketch12.addGeometry(Part.LineSegment(Vector(14.65, 78.505, 0), Vector(14.65, 81.705, 0)), False)
sketch12.addGeometry(Part.LineSegment(Vector(14.65, 81.705, 0), Vector(19.65, 81.705, 0)), False)
sketch12.addGeometry(Part.LineSegment(Vector(19.65, 81.705, 0), Vector(19.65, 82.905, 0)), False)
sketch12.addGeometry(Part.LineSegment(Vector(19.65, 82.905, 0), Vector(22.15, 82.905, 0)), False)
sketch12.addGeometry(Part.LineSegment(Vector(22.15, 82.905, 0), Vector(22.15, 81.705, 0)), False)
sketch12.addGeometry(Part.LineSegment(Vector(22.15, 81.705, 0), Vector(23.65, 81.705, 0)), False)
sketch12.addGeometry(Part.LineSegment(Vector(23.65, 81.705, 0), Vector(23.65, 78.505, 0)), False)
sketch12.addGeometry(Part.LineSegment(Vector(23.65, 78.505, 0), Vector(22.15, 78.505, 0)), False)
sketch12.addGeometry(Part.LineSegment(Vector(22.15, 78.505, 0), Vector(22.15, 77.305, 0)), False)
sketch12.addConstraint(Sketcher.Constraint("Coincident", 0, 2, 1, 1))
sketch12.addConstraint(Sketcher.Constraint("Coincident", 1, 2, 2, 1))
sketch12.addConstraint(Sketcher.Constraint("Coincident", 2, 2, 3, 1))
sketch12.addConstraint(Sketcher.Constraint("Coincident", 3, 2, 4, 1))
sketch12.addConstraint(Sketcher.Constraint("Coincident", 4, 2, 5, 1))
sketch12.addConstraint(Sketcher.Constraint("Coincident", 5, 2, 6, 1))
sketch12.addConstraint(Sketcher.Constraint("Coincident", 6, 2, 7, 1))
sketch12.addConstraint(Sketcher.Constraint("Coincident", 7, 2, 8, 1))
sketch12.addConstraint(Sketcher.Constraint("Coincident", 8, 2, 9, 1))
sketch12.addConstraint(Sketcher.Constraint("Coincident", 9, 2, 10, 1))
sketch12.addConstraint(Sketcher.Constraint("Coincident", 10, 2, 11, 1))
sketch12.addConstraint(Sketcher.Constraint("Coincident", 11, 2, 0, 1))
sketch12.addConstraint(Sketcher.Constraint("Horizontal", 0))
sketch12.addConstraint(Sketcher.Constraint("Vertical", 1))
sketch12.addConstraint(Sketcher.Constraint("Horizontal", 2))
sketch12.addConstraint(Sketcher.Constraint("Vertical", 3))
sketch12.addConstraint(Sketcher.Constraint("Horizontal", 4))
sketch12.addConstraint(Sketcher.Constraint("Vertical", 5))
sketch12.addConstraint(Sketcher.Constraint("Horizontal", 6))
sketch12.addConstraint(Sketcher.Constraint("Vertical", 7))
sketch12.addConstraint(Sketcher.Constraint("Horizontal", 8))
sketch12.addConstraint(Sketcher.Constraint("Vertical", 9))
sketch12.addConstraint(Sketcher.Constraint("Horizontal", 10))
sketch12.addConstraint(Sketcher.Constraint("Vertical", 11))
sketch12.addConstraint(Sketcher.Constraint("Horizontal", 4, 2, 7, 2))
sketch12.addConstraint(Sketcher.Constraint("Horizontal", 2, 2, 9, 2))
sketch12.addConstraint(Sketcher.Constraint("Vertical", 1, 2, 4, 2))
sketch12.addConstraint(Sketcher.Constraint("Vertical", 7, 2, 10, 2))
sketch12.addConstraint(Sketcher.Constraint("Equal", 1, 5))
sketch12.addConstraint(Sketcher.Constraint("DistanceX", 2, 2, 2, 1, Q("5 mm")))
sketch12.addConstraint(Sketcher.Constraint("DistanceX", 0, 2, 0, 1, Q("2.5 mm")))
sketch12.addConstraint(Sketcher.Constraint("DistanceX", 8, 1, 8, 2, Q("1.5 mm")))
sketch12.addConstraint(Sketcher.Constraint("DistanceY", 1, 1, 1, 2, Q("1.2 mm")))
sketch12.addConstraint(Sketcher.Constraint("DistanceY", 3, 1, 3, 2, Q("3.2 mm")))
sketch12.addConstraint(Sketcher.Constraint("DistanceX", -1, 1, 0, 2, Q("19.65 mm")))
sketch12.addConstraint(Sketcher.Constraint("DistanceY", -1, 1, 0, 2, Q("77.305 mm")))
pocket11 = body.newObject("PartDesign::Pocket", "Pocket010")
pocket11.Profile = sketch12
pocket11.Type = "UpToFirst"
pocket11.Reversed = True

# Sketch on XZ plane
sketch13 = body.newObject("Sketcher::SketchObject", "Sketch012")
sketch13.AttachmentSupport = (doc.getObject("XZ_Plane"), [""])
sketch13.MapMode = "FlatFace"
sketch13.AttachmentOffset = App.Placement(Vector(0, 0, -6.35), App.Rotation())
sketch13.addGeometry(Part.LineSegment(Vector(-22.15, 77.305, 0), Vector(-22.15, 78.505, 0)), False)
sketch13.addGeometry(Part.LineSegment(Vector(-22.15, 78.505, 0), Vector(-23.65, 78.505, 0)), False)
sketch13.addGeometry(Part.LineSegment(Vector(-23.65, 78.505, 0), Vector(-23.65, 81.705, 0)), False)
sketch13.addGeometry(Part.LineSegment(Vector(-23.65, 81.705, 0), Vector(-22.15, 81.705, 0)), False)
sketch13.addGeometry(Part.LineSegment(Vector(-22.15, 81.705, 0), Vector(-22.15, 82.905, 0)), False)
sketch13.addGeometry(Part.LineSegment(Vector(-22.15, 82.905, 0), Vector(-19.65, 82.905, 0)), False)
sketch13.addGeometry(Part.LineSegment(Vector(-19.65, 82.905, 0), Vector(-19.65, 81.705, 0)), False)
sketch13.addGeometry(Part.LineSegment(Vector(-19.65, 81.705, 0), Vector(-14.65, 81.705, 0)), False)
sketch13.addGeometry(Part.LineSegment(Vector(-14.65, 81.705, 0), Vector(-14.65, 78.505, 0)), False)
sketch13.addGeometry(Part.LineSegment(Vector(-14.65, 78.505, 0), Vector(-19.65, 78.505, 0)), False)
sketch13.addGeometry(Part.LineSegment(Vector(-19.65, 78.505, 0), Vector(-19.65, 77.305, 0)), False)
sketch13.addGeometry(Part.LineSegment(Vector(-19.65, 77.305, 0), Vector(-22.15, 77.305, 0)), False)
sketch13.addConstraint(Sketcher.Constraint("Coincident", 0, 2, 1, 1))
sketch13.addConstraint(Sketcher.Constraint("Coincident", 1, 2, 2, 1))
sketch13.addConstraint(Sketcher.Constraint("Coincident", 2, 2, 3, 1))
sketch13.addConstraint(Sketcher.Constraint("Coincident", 3, 2, 4, 1))
sketch13.addConstraint(Sketcher.Constraint("Coincident", 4, 2, 5, 1))
sketch13.addConstraint(Sketcher.Constraint("Coincident", 5, 2, 6, 1))
sketch13.addConstraint(Sketcher.Constraint("Coincident", 6, 2, 7, 1))
sketch13.addConstraint(Sketcher.Constraint("Coincident", 7, 2, 8, 1))
sketch13.addConstraint(Sketcher.Constraint("Coincident", 8, 2, 9, 1))
sketch13.addConstraint(Sketcher.Constraint("Coincident", 9, 2, 10, 1))
sketch13.addConstraint(Sketcher.Constraint("Coincident", 10, 2, 11, 1))
sketch13.addConstraint(Sketcher.Constraint("Coincident", 11, 2, 0, 1))
sketch13.addConstraint(Sketcher.Constraint("Vertical", 0))
sketch13.addConstraint(Sketcher.Constraint("Horizontal", 1))
sketch13.addConstraint(Sketcher.Constraint("Vertical", 2))
sketch13.addConstraint(Sketcher.Constraint("Horizontal", 3))
sketch13.addConstraint(Sketcher.Constraint("Vertical", 4))
sketch13.addConstraint(Sketcher.Constraint("Horizontal", 5))
sketch13.addConstraint(Sketcher.Constraint("Vertical", 6))
sketch13.addConstraint(Sketcher.Constraint("Horizontal", 7))
sketch13.addConstraint(Sketcher.Constraint("Vertical", 8))
sketch13.addConstraint(Sketcher.Constraint("Horizontal", 9))
sketch13.addConstraint(Sketcher.Constraint("Vertical", 10))
sketch13.addConstraint(Sketcher.Constraint("Horizontal", 11))
sketch13.addConstraint(Sketcher.Constraint("Horizontal", 3, 2, 6, 2))
sketch13.addConstraint(Sketcher.Constraint("Horizontal", 1, 2, 8, 2))
sketch13.addConstraint(Sketcher.Constraint("Vertical", 0, 2, 3, 2))
sketch13.addConstraint(Sketcher.Constraint("Vertical", 6, 2, 9, 2))
sketch13.addConstraint(Sketcher.Constraint("Equal", 0, 4))
sketch13.addConstraint(Sketcher.Constraint("DistanceX", 7, 1, 7, 2, Q("5 mm")))
sketch13.addConstraint(Sketcher.Constraint("DistanceX", 1, 2, 1, 1, Q("1.5 mm")))
sketch13.addConstraint(Sketcher.Constraint("DistanceX", 5, 1, 5, 2, Q("2.5 mm")))
sketch13.addConstraint(Sketcher.Constraint("DistanceY", 0, 1, 0, 2, Q("1.2 mm")))
sketch13.addConstraint(Sketcher.Constraint("DistanceY", 2, 1, 2, 2, Q("3.2 mm")))
sketch13.addConstraint(Sketcher.Constraint("DistanceX", 0, 2, -1, 1, Q("22.15 mm")))
sketch13.addConstraint(Sketcher.Constraint("DistanceY", -1, 1, 0, 2, Q("78.505 mm")))
pocket12 = body.newObject("PartDesign::Pocket", "Pocket011")
pocket12.Profile = sketch13
pocket12.Type = "UpToFirst"
pocket12.Reversed = True

# Sketch on XZ plane
sketch14 = body.newObject("Sketcher::SketchObject", "Sketch013")
sketch14.AttachmentSupport = (doc.getObject("XZ_Plane"), [""])
sketch14.MapMode = "FlatFace"
sketch14.AttachmentOffset = App.Placement(Vector(0, 0, -6.35), App.Rotation())
sketch14.addGeometry(Part.LineSegment(Vector(-22.15, 53.305, 0), Vector(-22.15, 54.505, 0)), False)
sketch14.addGeometry(Part.LineSegment(Vector(-22.15, 54.505, 0), Vector(-23.65, 54.505, 0)), False)
sketch14.addGeometry(Part.LineSegment(Vector(-23.65, 54.505, 0), Vector(-23.65, 57.705, 0)), False)
sketch14.addGeometry(Part.LineSegment(Vector(-23.65, 57.705, 0), Vector(-22.15, 57.705, 0)), False)
sketch14.addGeometry(Part.LineSegment(Vector(-22.15, 57.705, 0), Vector(-22.15, 58.905, 0)), False)
sketch14.addGeometry(Part.LineSegment(Vector(-22.15, 58.905, 0), Vector(-19.65, 58.905, 0)), False)
sketch14.addGeometry(Part.LineSegment(Vector(-19.65, 58.905, 0), Vector(-19.65, 57.705, 0)), False)
sketch14.addGeometry(Part.LineSegment(Vector(-19.65, 57.705, 0), Vector(-14.65, 57.705, 0)), False)
sketch14.addGeometry(Part.LineSegment(Vector(-14.65, 57.705, 0), Vector(-14.65, 54.505, 0)), False)
sketch14.addGeometry(Part.LineSegment(Vector(-14.65, 54.505, 0), Vector(-19.65, 54.505, 0)), False)
sketch14.addGeometry(Part.LineSegment(Vector(-19.65, 54.505, 0), Vector(-19.65, 53.305, 0)), False)
sketch14.addGeometry(Part.LineSegment(Vector(-19.65, 53.305, 0), Vector(-22.15, 53.305, 0)), False)
sketch14.addConstraint(Sketcher.Constraint("Coincident", 0, 2, 1, 1))
sketch14.addConstraint(Sketcher.Constraint("Coincident", 1, 2, 2, 1))
sketch14.addConstraint(Sketcher.Constraint("Coincident", 2, 2, 3, 1))
sketch14.addConstraint(Sketcher.Constraint("Coincident", 3, 2, 4, 1))
sketch14.addConstraint(Sketcher.Constraint("Coincident", 4, 2, 5, 1))
sketch14.addConstraint(Sketcher.Constraint("Coincident", 5, 2, 6, 1))
sketch14.addConstraint(Sketcher.Constraint("Coincident", 6, 2, 7, 1))
sketch14.addConstraint(Sketcher.Constraint("Coincident", 7, 2, 8, 1))
sketch14.addConstraint(Sketcher.Constraint("Coincident", 8, 2, 9, 1))
sketch14.addConstraint(Sketcher.Constraint("Coincident", 9, 2, 10, 1))
sketch14.addConstraint(Sketcher.Constraint("Coincident", 10, 2, 11, 1))
sketch14.addConstraint(Sketcher.Constraint("Coincident", 11, 2, 0, 1))
sketch14.addConstraint(Sketcher.Constraint("Vertical", 0))
sketch14.addConstraint(Sketcher.Constraint("Horizontal", 1))
sketch14.addConstraint(Sketcher.Constraint("Vertical", 2))
sketch14.addConstraint(Sketcher.Constraint("Horizontal", 3))
sketch14.addConstraint(Sketcher.Constraint("Vertical", 4))
sketch14.addConstraint(Sketcher.Constraint("Horizontal", 5))
sketch14.addConstraint(Sketcher.Constraint("Vertical", 6))
sketch14.addConstraint(Sketcher.Constraint("Horizontal", 7))
sketch14.addConstraint(Sketcher.Constraint("Vertical", 8))
sketch14.addConstraint(Sketcher.Constraint("Horizontal", 9))
sketch14.addConstraint(Sketcher.Constraint("Vertical", 10))
sketch14.addConstraint(Sketcher.Constraint("Horizontal", 11))
sketch14.addConstraint(Sketcher.Constraint("Horizontal", 3, 2, 6, 2))
sketch14.addConstraint(Sketcher.Constraint("Horizontal", 1, 2, 8, 2))
sketch14.addConstraint(Sketcher.Constraint("Vertical", 0, 2, 3, 2))
sketch14.addConstraint(Sketcher.Constraint("Vertical", 6, 2, 9, 2))
sketch14.addConstraint(Sketcher.Constraint("Equal", 0, 4))
sketch14.addConstraint(Sketcher.Constraint("DistanceX", 7, 1, 7, 2, Q("5 mm")))
sketch14.addConstraint(Sketcher.Constraint("DistanceX", 1, 2, 1, 1, Q("1.5 mm")))
sketch14.addConstraint(Sketcher.Constraint("DistanceX", 5, 1, 5, 2, Q("2.5 mm")))
sketch14.addConstraint(Sketcher.Constraint("DistanceY", 0, 1, 0, 2, Q("1.2 mm")))
sketch14.addConstraint(Sketcher.Constraint("DistanceY", 2, 1, 2, 2, Q("3.2 mm")))
sketch14.addConstraint(Sketcher.Constraint("DistanceX", 0, 2, -1, 1, Q("22.15 mm")))
sketch14.addConstraint(Sketcher.Constraint("DistanceY", -1, 1, 0, 2, Q("54.505 mm")))
pocket13 = body.newObject("PartDesign::Pocket", "Pocket012")
pocket13.Profile = sketch14
pocket13.Type = "UpToFirst"
pocket13.Reversed = True

# Sketch on XZ plane
sketch15 = body.newObject("Sketcher::SketchObject", "Sketch014")
sketch15.AttachmentSupport = (doc.getObject("XZ_Plane"), [""])
sketch15.MapMode = "FlatFace"
sketch15.AttachmentOffset = App.Placement(Vector(0, 0, -6.35), App.Rotation())
sketch15.addGeometry(Part.LineSegment(Vector(-19.65, 33.705, 0), Vector(-14.65, 33.705, 0)), False)
sketch15.addGeometry(Part.LineSegment(Vector(-14.65, 33.705, 0), Vector(-14.65, 30.505, 0)), False)
sketch15.addGeometry(Part.LineSegment(Vector(-14.65, 30.505, 0), Vector(-19.65, 30.505, 0)), False)
sketch15.addGeometry(Part.LineSegment(Vector(-19.65, 30.505, 0), Vector(-19.65, 29.305, 0)), False)
sketch15.addGeometry(Part.LineSegment(Vector(-19.65, 29.305, 0), Vector(-22.15, 29.305, 0)), False)
sketch15.addGeometry(Part.LineSegment(Vector(-22.15, 29.305, 0), Vector(-22.15, 30.505, 0)), False)
sketch15.addGeometry(Part.LineSegment(Vector(-22.15, 30.505, 0), Vector(-23.65, 30.505, 0)), False)
sketch15.addGeometry(Part.LineSegment(Vector(-23.65, 30.505, 0), Vector(-23.65, 33.705, 0)), False)
sketch15.addGeometry(Part.LineSegment(Vector(-23.65, 33.705, 0), Vector(-22.15, 33.705, 0)), False)
sketch15.addGeometry(Part.LineSegment(Vector(-22.15, 33.705, 0), Vector(-22.15, 34.905, 0)), False)
sketch15.addGeometry(Part.LineSegment(Vector(-22.15, 34.905, 0), Vector(-19.65, 34.905, 0)), False)
sketch15.addGeometry(Part.LineSegment(Vector(-19.65, 34.905, 0), Vector(-19.65, 33.705, 0)), False)
sketch15.addConstraint(Sketcher.Constraint("Coincident", 0, 2, 1, 1))
sketch15.addConstraint(Sketcher.Constraint("Coincident", 1, 2, 2, 1))
sketch15.addConstraint(Sketcher.Constraint("Coincident", 2, 2, 3, 1))
sketch15.addConstraint(Sketcher.Constraint("Coincident", 3, 2, 4, 1))
sketch15.addConstraint(Sketcher.Constraint("Coincident", 4, 2, 5, 1))
sketch15.addConstraint(Sketcher.Constraint("Coincident", 5, 2, 6, 1))
sketch15.addConstraint(Sketcher.Constraint("Coincident", 6, 2, 7, 1))
sketch15.addConstraint(Sketcher.Constraint("Coincident", 7, 2, 8, 1))
sketch15.addConstraint(Sketcher.Constraint("Coincident", 8, 2, 9, 1))
sketch15.addConstraint(Sketcher.Constraint("Coincident", 9, 2, 10, 1))
sketch15.addConstraint(Sketcher.Constraint("Coincident", 10, 2, 11, 1))
sketch15.addConstraint(Sketcher.Constraint("Coincident", 11, 2, 0, 1))
sketch15.addConstraint(Sketcher.Constraint("Horizontal", 0))
sketch15.addConstraint(Sketcher.Constraint("Vertical", 1))
sketch15.addConstraint(Sketcher.Constraint("Horizontal", 2))
sketch15.addConstraint(Sketcher.Constraint("Vertical", 3))
sketch15.addConstraint(Sketcher.Constraint("Horizontal", 4))
sketch15.addConstraint(Sketcher.Constraint("Vertical", 5))
sketch15.addConstraint(Sketcher.Constraint("Horizontal", 6))
sketch15.addConstraint(Sketcher.Constraint("Vertical", 7))
sketch15.addConstraint(Sketcher.Constraint("Horizontal", 8))
sketch15.addConstraint(Sketcher.Constraint("Vertical", 9))
sketch15.addConstraint(Sketcher.Constraint("Horizontal", 10))
sketch15.addConstraint(Sketcher.Constraint("Vertical", 11))
sketch15.addConstraint(Sketcher.Constraint("Horizontal", 2, 2, 5, 2))
sketch15.addConstraint(Sketcher.Constraint("Horizontal", 0, 2, 7, 2))
sketch15.addConstraint(Sketcher.Constraint("Vertical", 5, 2, 8, 2))
sketch15.addConstraint(Sketcher.Constraint("Vertical", 3, 2, 10, 2))
sketch15.addConstraint(Sketcher.Constraint("Equal", 5, 9))
sketch15.addConstraint(Sketcher.Constraint("DistanceX", 0, 1, 0, 2, Q("5 mm")))
sketch15.addConstraint(Sketcher.Constraint("DistanceX", 4, 2, 4, 1, Q("2.5 mm")))
sketch15.addConstraint(Sketcher.Constraint("DistanceX", 6, 2, 6, 1, Q("1.5 mm")))
sketch15.addConstraint(Sketcher.Constraint("DistanceY", 1, 2, 1, 1, Q("3.2 mm")))
sketch15.addConstraint(Sketcher.Constraint("DistanceY", 3, 2, 3, 1, Q("1.2 mm")))
sketch15.addConstraint(Sketcher.Constraint("DistanceX", 0, 2, -1, 1, Q("14.65 mm")))
sketch15.addConstraint(Sketcher.Constraint("DistanceY", -1, 1, 0, 2, Q("33.705 mm")))
pocket14 = body.newObject("PartDesign::Pocket", "Pocket013")
pocket14.Profile = sketch15
pocket14.Type = "UpToFirst"
pocket14.Reversed = True

# Sketch on XZ plane
sketch16 = body.newObject("Sketcher::SketchObject", "Sketch015")
sketch16.AttachmentSupport = (doc.getObject("XZ_Plane"), [""])
sketch16.MapMode = "FlatFace"
sketch16.AttachmentOffset = App.Placement(Vector(0, 0, -6.35), App.Rotation())
sketch16.addGeometry(Part.Circle(Vector(-17.033872, -20.300178, 0), Vector(0, 0, 1), 1.6), False)
sketch16.addGeometry(Part.Circle(Vector(17.033872, -20.300178, 0), Vector(0, 0, 1), 1.6), False)
sketch16.addConstraint(Sketcher.Constraint("Equal", 0, 1))
sketch16.addConstraint(Sketcher.Constraint("Symmetric", 0, 3, 1, 3, -2))
sketch16.addConstraint(Sketcher.Constraint("Diameter", 0, Q("3.2 mm")))
sketch16.addConstraint(Sketcher.Constraint("DistanceX", 0, 3, -1, 1, Q("17.033872 mm")))
sketch16.addConstraint(Sketcher.Constraint("DistanceY", 0, 3, -1, 1, Q("20.300178 mm")))
pocket15 = body.newObject("PartDesign::Pocket", "Pocket014")
pocket15.Profile = sketch16
pocket15.Type = "ThroughAll"
pocket15.Reversed = True
doc.recompute()

fillet = body.newObject("PartDesign::Fillet", "Fillet")
fillet.Base = (pocket15, edges_at(pocket15, [
    (75, 3.175, 113.445),
    (60, 3.175, 139.426),
    (30, 3.175, 122.105),
    (-30, 3.175, 122.105),
    (-60, 3.175, 139.426),
    (-75, 3.175, 113.445),
]))
fillet.Radius = 5

doc.recompute()
